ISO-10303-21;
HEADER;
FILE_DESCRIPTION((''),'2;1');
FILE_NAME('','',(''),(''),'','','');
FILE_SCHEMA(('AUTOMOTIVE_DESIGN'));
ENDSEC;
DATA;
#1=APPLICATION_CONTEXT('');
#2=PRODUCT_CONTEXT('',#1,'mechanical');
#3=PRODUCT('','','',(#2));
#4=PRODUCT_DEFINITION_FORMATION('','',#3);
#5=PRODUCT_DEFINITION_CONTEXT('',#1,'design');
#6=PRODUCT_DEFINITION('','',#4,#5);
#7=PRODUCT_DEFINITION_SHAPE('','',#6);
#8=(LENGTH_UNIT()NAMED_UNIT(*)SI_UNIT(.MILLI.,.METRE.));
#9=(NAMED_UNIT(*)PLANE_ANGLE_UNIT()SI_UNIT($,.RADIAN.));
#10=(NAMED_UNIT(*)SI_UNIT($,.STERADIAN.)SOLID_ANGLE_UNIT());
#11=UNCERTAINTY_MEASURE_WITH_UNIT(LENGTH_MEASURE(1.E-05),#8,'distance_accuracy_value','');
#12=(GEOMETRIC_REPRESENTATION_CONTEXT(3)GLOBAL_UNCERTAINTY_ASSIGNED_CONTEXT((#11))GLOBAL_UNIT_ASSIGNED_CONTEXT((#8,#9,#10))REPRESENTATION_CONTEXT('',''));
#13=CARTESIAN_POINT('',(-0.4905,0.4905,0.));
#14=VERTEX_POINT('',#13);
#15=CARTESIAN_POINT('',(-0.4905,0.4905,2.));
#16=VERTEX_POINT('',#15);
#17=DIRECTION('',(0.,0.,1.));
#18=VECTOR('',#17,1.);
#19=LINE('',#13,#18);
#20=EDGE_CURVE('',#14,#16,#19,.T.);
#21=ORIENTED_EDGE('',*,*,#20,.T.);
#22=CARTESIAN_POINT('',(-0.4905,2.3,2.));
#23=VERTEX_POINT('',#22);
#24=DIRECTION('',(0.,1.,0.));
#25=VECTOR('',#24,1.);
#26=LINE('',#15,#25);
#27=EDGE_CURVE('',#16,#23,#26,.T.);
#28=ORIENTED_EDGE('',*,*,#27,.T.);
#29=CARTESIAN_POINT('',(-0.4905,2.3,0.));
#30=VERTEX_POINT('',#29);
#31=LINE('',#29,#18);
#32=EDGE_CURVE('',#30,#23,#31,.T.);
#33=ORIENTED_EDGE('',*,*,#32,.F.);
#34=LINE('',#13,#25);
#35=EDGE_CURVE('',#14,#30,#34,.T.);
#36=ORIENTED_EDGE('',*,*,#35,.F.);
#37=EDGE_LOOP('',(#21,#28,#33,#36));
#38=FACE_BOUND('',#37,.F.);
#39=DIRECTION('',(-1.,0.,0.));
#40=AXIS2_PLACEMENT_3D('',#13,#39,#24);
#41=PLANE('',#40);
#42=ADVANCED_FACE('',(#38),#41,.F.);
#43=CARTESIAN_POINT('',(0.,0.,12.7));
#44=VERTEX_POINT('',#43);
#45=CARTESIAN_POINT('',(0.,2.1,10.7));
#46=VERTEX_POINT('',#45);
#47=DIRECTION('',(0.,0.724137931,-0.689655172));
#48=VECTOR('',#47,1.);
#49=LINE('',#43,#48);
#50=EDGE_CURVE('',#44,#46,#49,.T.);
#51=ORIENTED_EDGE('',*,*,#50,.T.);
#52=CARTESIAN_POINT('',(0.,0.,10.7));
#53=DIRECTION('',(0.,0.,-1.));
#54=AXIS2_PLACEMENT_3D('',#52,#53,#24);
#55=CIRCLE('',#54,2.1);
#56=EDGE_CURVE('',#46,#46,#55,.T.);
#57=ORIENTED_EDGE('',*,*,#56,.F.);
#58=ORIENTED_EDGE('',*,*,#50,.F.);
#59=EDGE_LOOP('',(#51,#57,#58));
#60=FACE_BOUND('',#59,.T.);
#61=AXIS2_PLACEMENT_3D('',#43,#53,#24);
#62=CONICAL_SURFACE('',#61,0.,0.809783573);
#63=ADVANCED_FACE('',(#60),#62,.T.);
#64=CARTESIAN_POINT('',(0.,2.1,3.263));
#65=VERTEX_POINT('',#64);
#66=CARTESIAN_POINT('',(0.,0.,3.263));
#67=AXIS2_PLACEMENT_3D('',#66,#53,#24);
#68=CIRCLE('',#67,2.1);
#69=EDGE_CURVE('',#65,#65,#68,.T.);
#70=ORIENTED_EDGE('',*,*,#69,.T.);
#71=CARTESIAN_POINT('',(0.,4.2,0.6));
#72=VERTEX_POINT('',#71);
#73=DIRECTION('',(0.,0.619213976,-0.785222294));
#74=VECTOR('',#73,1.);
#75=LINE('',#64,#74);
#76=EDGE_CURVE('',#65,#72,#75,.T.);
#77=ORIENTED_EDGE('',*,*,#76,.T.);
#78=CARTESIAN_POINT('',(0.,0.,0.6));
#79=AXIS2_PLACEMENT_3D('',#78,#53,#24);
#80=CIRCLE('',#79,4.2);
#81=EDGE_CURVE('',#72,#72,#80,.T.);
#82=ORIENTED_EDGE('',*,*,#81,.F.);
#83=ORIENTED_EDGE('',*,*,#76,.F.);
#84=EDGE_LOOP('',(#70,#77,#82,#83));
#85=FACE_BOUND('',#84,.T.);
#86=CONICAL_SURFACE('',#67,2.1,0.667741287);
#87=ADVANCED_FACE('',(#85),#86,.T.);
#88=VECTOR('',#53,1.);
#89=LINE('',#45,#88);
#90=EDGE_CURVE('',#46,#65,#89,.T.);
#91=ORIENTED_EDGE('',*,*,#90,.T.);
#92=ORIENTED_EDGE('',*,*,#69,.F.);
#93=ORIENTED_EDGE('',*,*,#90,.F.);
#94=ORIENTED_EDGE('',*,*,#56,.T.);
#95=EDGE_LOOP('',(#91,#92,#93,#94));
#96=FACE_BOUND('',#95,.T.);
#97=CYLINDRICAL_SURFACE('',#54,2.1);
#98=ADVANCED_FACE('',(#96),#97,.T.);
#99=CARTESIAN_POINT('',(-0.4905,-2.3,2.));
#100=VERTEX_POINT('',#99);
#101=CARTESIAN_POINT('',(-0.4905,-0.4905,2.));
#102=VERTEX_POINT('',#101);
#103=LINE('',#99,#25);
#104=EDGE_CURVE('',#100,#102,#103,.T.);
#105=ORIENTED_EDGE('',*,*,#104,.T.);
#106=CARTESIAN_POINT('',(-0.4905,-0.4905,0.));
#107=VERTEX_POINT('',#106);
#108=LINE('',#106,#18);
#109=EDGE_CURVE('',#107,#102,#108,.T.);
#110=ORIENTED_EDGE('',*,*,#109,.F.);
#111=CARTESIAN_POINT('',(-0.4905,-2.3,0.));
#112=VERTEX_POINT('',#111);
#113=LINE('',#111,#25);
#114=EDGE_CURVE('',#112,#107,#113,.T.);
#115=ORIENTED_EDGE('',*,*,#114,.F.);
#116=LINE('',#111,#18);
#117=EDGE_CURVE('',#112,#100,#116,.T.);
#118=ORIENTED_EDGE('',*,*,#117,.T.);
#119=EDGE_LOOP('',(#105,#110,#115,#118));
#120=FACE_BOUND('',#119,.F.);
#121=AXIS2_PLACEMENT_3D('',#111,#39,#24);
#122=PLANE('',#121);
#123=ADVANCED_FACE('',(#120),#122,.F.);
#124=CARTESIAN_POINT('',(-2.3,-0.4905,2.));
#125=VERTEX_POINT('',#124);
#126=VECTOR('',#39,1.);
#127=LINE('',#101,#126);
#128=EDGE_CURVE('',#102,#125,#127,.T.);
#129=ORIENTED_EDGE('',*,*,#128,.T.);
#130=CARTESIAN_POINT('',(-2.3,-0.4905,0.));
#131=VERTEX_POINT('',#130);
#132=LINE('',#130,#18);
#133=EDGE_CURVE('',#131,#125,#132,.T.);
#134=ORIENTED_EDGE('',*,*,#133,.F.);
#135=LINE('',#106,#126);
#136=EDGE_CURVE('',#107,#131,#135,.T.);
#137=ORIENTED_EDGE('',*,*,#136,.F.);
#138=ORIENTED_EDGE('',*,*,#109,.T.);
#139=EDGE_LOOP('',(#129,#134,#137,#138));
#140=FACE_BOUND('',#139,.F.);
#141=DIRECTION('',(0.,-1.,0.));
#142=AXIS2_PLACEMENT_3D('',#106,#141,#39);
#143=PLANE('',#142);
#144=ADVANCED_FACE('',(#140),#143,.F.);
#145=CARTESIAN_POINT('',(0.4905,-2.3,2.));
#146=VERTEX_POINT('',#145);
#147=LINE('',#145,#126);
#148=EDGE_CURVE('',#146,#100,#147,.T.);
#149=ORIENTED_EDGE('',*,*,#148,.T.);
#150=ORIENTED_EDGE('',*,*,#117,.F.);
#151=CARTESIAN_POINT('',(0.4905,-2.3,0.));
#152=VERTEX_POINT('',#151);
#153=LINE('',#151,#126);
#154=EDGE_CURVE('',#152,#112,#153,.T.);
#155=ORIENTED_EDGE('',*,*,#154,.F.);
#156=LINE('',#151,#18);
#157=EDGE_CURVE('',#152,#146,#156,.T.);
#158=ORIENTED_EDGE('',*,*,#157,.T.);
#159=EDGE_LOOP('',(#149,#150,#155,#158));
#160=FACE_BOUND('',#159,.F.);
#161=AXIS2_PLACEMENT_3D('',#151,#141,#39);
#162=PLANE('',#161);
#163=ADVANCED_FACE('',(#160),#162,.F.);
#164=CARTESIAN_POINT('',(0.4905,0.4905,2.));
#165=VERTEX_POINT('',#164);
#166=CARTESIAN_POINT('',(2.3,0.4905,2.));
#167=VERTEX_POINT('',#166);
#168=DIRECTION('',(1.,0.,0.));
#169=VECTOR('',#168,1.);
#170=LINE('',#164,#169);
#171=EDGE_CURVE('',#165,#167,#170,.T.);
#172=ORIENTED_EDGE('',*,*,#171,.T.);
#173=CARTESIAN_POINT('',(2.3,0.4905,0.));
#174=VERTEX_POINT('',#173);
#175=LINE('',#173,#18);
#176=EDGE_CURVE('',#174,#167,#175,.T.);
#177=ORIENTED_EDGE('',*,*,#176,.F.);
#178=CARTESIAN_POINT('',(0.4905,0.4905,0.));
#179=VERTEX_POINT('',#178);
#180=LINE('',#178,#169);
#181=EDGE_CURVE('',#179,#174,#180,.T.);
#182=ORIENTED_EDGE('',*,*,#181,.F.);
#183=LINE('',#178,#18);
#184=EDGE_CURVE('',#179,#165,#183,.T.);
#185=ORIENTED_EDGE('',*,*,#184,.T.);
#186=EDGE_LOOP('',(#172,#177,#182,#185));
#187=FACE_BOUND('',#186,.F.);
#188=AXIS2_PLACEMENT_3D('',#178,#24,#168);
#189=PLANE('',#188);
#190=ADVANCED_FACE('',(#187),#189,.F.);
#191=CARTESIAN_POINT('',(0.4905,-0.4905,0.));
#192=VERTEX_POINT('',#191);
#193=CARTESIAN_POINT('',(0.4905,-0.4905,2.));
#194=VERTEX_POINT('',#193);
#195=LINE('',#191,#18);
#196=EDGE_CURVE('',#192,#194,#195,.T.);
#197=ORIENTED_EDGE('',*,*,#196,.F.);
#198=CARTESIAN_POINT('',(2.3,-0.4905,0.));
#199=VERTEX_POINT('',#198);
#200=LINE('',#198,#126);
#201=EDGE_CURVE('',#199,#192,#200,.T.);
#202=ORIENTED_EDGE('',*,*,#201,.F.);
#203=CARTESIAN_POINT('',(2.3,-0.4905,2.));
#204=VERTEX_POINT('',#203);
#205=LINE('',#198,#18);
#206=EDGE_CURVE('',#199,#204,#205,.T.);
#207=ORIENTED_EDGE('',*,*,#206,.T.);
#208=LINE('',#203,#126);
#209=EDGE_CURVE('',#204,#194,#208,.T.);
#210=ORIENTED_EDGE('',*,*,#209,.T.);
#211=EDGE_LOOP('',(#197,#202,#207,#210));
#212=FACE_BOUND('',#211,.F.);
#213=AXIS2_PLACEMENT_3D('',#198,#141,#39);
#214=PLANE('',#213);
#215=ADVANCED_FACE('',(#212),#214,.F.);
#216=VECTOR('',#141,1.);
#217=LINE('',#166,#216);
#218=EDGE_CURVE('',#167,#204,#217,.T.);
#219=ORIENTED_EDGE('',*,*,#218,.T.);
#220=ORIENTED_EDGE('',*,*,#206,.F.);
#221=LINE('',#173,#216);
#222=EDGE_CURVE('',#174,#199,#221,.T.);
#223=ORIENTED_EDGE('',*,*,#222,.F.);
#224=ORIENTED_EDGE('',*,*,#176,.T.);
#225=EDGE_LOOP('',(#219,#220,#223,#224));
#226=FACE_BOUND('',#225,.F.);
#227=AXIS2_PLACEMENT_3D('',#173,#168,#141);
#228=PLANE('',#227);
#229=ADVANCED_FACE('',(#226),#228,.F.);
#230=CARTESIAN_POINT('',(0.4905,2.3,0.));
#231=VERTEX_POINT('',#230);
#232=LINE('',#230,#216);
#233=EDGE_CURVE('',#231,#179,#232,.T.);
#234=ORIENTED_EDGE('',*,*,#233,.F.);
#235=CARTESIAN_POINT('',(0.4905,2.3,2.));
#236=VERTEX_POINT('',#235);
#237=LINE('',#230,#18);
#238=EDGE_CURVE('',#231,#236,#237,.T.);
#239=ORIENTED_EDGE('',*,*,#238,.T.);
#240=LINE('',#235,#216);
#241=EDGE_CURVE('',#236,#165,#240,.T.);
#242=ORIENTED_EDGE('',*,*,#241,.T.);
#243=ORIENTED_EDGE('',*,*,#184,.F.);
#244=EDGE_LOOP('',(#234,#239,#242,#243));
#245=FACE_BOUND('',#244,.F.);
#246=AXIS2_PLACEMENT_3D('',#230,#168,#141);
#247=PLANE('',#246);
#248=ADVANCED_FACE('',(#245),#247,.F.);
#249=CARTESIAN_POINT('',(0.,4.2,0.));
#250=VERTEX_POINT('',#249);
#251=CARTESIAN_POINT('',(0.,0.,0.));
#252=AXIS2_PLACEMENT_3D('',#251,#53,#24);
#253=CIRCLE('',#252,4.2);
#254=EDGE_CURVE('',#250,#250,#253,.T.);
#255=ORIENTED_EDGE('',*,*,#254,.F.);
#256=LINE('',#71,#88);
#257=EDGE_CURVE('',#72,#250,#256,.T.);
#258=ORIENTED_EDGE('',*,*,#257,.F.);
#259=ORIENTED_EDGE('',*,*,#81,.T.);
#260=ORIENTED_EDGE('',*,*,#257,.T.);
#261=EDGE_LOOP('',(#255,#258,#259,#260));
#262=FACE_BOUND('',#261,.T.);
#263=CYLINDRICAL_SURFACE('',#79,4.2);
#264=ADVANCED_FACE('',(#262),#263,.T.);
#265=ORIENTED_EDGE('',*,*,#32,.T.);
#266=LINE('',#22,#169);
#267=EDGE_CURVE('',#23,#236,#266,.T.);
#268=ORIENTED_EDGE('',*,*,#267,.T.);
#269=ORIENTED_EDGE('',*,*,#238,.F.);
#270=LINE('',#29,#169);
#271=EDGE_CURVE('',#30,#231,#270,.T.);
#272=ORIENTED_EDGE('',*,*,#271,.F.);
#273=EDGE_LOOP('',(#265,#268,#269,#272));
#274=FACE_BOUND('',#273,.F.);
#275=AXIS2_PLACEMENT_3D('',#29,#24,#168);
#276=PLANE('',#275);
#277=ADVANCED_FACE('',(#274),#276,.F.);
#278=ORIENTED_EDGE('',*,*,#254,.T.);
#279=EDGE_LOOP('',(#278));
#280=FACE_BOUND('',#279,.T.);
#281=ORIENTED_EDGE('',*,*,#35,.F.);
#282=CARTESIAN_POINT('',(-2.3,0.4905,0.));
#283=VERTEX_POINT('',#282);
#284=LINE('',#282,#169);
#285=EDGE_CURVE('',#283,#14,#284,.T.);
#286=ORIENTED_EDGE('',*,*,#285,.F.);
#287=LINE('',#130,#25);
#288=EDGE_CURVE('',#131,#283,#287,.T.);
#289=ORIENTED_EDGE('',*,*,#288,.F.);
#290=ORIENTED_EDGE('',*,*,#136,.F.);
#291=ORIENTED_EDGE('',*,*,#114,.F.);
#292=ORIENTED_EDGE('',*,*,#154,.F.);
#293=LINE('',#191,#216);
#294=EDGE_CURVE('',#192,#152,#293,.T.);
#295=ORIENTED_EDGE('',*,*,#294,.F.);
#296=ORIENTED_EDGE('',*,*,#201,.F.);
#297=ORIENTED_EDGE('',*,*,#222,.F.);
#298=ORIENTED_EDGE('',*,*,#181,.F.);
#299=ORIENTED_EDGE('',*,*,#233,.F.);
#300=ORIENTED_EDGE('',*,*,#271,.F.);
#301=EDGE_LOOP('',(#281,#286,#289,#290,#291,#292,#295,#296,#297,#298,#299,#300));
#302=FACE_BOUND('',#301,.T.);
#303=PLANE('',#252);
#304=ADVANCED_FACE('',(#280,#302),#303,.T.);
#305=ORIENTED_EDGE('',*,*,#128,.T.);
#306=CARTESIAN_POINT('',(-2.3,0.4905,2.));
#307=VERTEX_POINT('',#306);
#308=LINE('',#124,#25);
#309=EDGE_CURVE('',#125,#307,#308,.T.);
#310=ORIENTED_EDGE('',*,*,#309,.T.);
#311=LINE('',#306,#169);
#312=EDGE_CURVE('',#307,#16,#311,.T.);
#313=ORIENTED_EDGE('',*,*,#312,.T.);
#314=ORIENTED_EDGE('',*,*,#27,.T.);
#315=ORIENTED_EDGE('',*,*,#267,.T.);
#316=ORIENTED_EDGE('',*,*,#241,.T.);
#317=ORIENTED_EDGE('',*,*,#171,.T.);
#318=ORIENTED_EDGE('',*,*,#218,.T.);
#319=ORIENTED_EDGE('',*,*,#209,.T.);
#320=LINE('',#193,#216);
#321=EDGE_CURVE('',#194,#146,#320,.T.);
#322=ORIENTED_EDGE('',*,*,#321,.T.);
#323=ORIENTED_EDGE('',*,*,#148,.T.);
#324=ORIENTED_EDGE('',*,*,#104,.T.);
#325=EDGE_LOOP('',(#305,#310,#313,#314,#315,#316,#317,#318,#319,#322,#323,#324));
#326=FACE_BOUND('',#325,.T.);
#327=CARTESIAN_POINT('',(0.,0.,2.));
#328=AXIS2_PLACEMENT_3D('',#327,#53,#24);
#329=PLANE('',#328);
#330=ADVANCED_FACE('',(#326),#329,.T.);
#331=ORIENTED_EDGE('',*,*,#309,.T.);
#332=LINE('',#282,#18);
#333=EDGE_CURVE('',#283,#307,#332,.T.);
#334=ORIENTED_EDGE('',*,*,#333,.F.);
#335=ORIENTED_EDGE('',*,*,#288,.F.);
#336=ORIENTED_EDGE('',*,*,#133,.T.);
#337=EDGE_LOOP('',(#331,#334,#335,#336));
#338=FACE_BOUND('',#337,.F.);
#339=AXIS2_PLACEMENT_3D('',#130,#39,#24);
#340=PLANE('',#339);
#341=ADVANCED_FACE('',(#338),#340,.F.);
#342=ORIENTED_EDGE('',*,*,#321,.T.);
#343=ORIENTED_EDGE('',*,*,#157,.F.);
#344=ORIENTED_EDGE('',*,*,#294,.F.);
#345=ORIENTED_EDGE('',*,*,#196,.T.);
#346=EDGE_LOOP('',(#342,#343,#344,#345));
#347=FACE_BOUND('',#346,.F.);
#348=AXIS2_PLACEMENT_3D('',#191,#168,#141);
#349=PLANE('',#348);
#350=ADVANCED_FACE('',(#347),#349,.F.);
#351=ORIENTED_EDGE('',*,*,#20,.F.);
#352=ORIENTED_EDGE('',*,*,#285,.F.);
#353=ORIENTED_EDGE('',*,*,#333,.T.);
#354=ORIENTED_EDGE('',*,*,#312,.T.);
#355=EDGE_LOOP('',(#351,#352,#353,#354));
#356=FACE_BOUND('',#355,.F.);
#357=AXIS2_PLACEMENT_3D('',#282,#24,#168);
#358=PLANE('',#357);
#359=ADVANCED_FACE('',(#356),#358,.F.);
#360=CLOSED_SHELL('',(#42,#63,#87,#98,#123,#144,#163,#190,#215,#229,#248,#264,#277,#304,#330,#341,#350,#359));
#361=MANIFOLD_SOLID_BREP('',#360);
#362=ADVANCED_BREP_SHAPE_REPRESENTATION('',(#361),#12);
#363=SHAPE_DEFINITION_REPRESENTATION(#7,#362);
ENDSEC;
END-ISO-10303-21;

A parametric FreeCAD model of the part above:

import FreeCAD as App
import Part
import Sketcher

V = App.Vector
Q = App.Units.Quantity

doc = App.newDocument("Part")
body = doc.addObject("PartDesign::Body", "Body")

# Sketch on YZ plane
sketch1 = body.newObject("Sketcher::SketchObject", "Sketch")
sketch1.AttachmentSupport = (doc.getObject("YZ_Plane"), [""])
sketch1.MapMode = "FlatFace"
sketch1.addGeometry(Part.LineSegment(V(0, 12.7, 0), V(0, 0, 0)), False)
sketch1.addGeometry(Part.LineSegment(V(0, 0, 0), V(4.2, 0, 0)), False)
sketch1.addGeometry(Part.LineSegment(V(4.2, 0, 0), V(4.2, 0.6, 0)), False)
sketch1.addGeometry(Part.LineSegment(V(4.2, 0.6, 0), V(2.1, 3.3, 0)), False)
sketch1.addGeometry(Part.LineSegment(V(2.1, 3.3, 0), V(2.1, 10.7, 0)), False)
sketch1.addGeometry(Part.LineSegment(V(2.1, 10.7, 0), V(0, 12.7, 0)), False)
sketch1.addConstraint(Sketcher.Constraint("Coincident", 0, 2, 1, 1))
sketch1.addConstraint(Sketcher.Constraint("Coincident", 1, 2, 2, 1))
sketch1.addConstraint(Sketcher.Constraint("Coincident", 2, 2, 3, 1))
sketch1.addConstraint(Sketcher.Constraint("Coincident", 3, 2, 4, 1))
sketch1.addConstraint(Sketcher.Constraint("Coincident", 4, 2, 5, 1))
sketch1.addConstraint(Sketcher.Constraint("Coincident", 5, 2, 0, 1))
sketch1.addConstraint(Sketcher.Constraint("Vertical", 0))
sketch1.addConstraint(Sketcher.Constraint("Horizontal", 1))
sketch1.addConstraint(Sketcher.Constraint("Vertical", 2))
sketch1.addConstraint(Sketcher.Constraint("Vertical", 4))
sketch1.addConstraint(Sketcher.Constraint("Coincident", 0, 2, -1, 1))
sketch1.addConstraint(Sketcher.Constraint("DistanceX", 1, 1, 1, 2, Q("4.2 mm")))
sketch1.addConstraint(Sketcher.Constraint("DistanceY", 0, 2, 0, 1, Q("12.7 mm")))
sketch1.addConstraint(Sketcher.Constraint("DistanceY", 2, 1, 2, 2, Q("0.6 mm")))
sketch1.addConstraint(Sketcher.Constraint("DistanceY", 4, 2, 5, 2, Q("2 mm")))
sketch1.addConstraint(Sketcher.Constraint("Distance", 5, Q("2.9 mm")))
sketch1.addConstraint(Sketcher.Constraint("DistanceY", 4, 1, 4, 2, Q("7.437 mm")))
revolution = body.newObject("PartDesign::Revolution", "Revolution")
revolution.Profile = sketch1
revolution.ReferenceAxis = (sketch1, ["V_Axis"])
revolution.Angle = 360

# Sketch on XY plane
sketch2 = body.newObject("Sketcher::SketchObject", "Sketch001")
sketch2.AttachmentSupport = (doc.getObject("XY_Plane"), [""])
sketch2.MapMode = "FlatFace"
sketch2.addGeometry(Part.LineSegment(V(0.5, -2.3, 0), V(-0.5, -2.3, 0)), False)
sketch2.addGeometry(Part.LineSegment(V(-0.5, -2.3, 0), V(-0.5, -0.5, 0)), False)
sketch2.addGeometry(Part.LineSegment(V(-0.5, -0.5, 0), V(-2.3, -0.5, 0)), False)
sketch2.addGeometry(Part.LineSegment(V(-2.3, -0.5, 0), V(-2.3, 0.5, 0)), False)
sketch2.addGeometry(Part.LineSegment(V(-2.3, 0.5, 0), V(-0.5, 0.5, 0)), False)
sketch2.addGeometry(Part.LineSegment(V(-0.5, 0.5, 0), V(-0.5, 2.3, 0)), False)
sketch2.addGeometry(Part.LineSegment(V(-0.5, 2.3, 0), V(0.5, 2.3, 0)), False)
sketch2.addGeometry(Part.LineSegment(V(0.5, 2.3, 0), V(0.5, 0.5, 0)), False)
sketch2.addGeometry(Part.LineSegment(V(0.5, 0.5, 0), V(2.3, 0.5, 0)), False)
sketch2.addGeometry(Part.LineSegment(V(2.3, 0.5, 0), V(2.3, -0.5, 0)), False)
sketch2.addGeometry(Part.LineSegment(V(2.3, -0.5, 0), V(0.5, -0.5, 0)), False)
sketch2.addGeometry(Part.LineSegment(V(0.5, -0.5, 0), V(0.5, -2.3, 0)), False)
sketch2.addConstraint(Sketcher.Constraint("Coincident", 0, 2, 1, 1))
sketch2.addConstraint(Sketcher.Constraint("Coincident", 1, 2, 2, 1))
sketch2.addConstraint(Sketcher.Constraint("Coincident", 2, 2, 3, 1))
sketch2.addConstraint(Sketcher.Constraint("Coincident", 3, 2, 4, 1))
sketch2.addConstraint(Sketcher.Constraint("Coincident", 4, 2, 5, 1))
sketch2.addConstraint(Sketcher.Constraint("Coincident", 5, 2, 6, 1))
sketch2.addConstraint(Sketcher.Constraint("Coincident", 6, 2, 7, 1))
sketch2.addConstraint(Sketcher.Constraint("Coincident", 7, 2, 8, 1))
sketch2.addConstraint(Sketcher.Constraint("Coincident", 8, 2, 9, 1))
sketch2.addConstraint(Sketcher.Constraint("Coincident", 9, 2, 10, 1))
sketch2.addConstraint(Sketcher.Constraint("Coincident", 10, 2, 11, 1))
sketch2.addConstraint(Sketcher.Constraint("Coincident", 11, 2, 0, 1))
sketch2.addConstraint(Sketcher.Constraint("Horizontal", 0))
sketch2.addConstraint(Sketcher.Constraint("Vertical", 1))
sketch2.addConstraint(Sketcher.Constraint("Horizontal", 2))
sketch2.addConstraint(Sketcher.Constraint("Vertical", 3))
sketch2.addConstraint(Sketcher.Constraint("Horizontal", 4))
sketch2.addConstraint(Sketcher.Constraint("Vertical", 5))
sketch2.addConstraint(Sketcher.Constraint("Horizontal", 6))
sketch2.addConstraint(Sketcher.Constraint("Vertical", 7))
sketch2.addConstraint(Sketcher.Constraint("Horizontal", 8))
sketch2.addConstraint(Sketcher.Constraint("Vertical", 9))
sketch2.addConstraint(Sketcher.Constraint("Horizontal", 10))
sketch2.addConstraint(Sketcher.Constraint("Vertical", 11))
sketch2.addConstraint(Sketcher.Constraint("Symmetric", 0, 2, 6, 2, -1, 1))
sketch2.addConstraint(Sketcher.Constraint("Symmetric", 2, 2, 8, 2, -1, 1))
sketch2.addConstraint(Sketcher.Constraint("Symmetric", 4, 2, 10, 2, -1, 1))
sketch2.addConstraint(Sketcher.Constraint("Symmetric", 4, 2, 7, 2, -2))
sketch2.addConstraint(Sketcher.Constraint("Equal", 10, 1))
sketch2.addConstraint(Sketcher.Constraint("Equal", 6, 3))
sketch2.addConstraint(Sketcher.Constraint("DistanceY", 0, 2, -1, 1, Q("2.3 mm")))
sketch2.addConstraint(Sketcher.Constraint("DistanceX", 0, 2, 0, 1, Q("0.981 mm")))
pocket1 = body.newObject("PartDesign::Pocket", "Pocket")
pocket1.Profile = sketch2
pocket1.Length = 2
pocket1.Reversed = True

doc.recompute()
